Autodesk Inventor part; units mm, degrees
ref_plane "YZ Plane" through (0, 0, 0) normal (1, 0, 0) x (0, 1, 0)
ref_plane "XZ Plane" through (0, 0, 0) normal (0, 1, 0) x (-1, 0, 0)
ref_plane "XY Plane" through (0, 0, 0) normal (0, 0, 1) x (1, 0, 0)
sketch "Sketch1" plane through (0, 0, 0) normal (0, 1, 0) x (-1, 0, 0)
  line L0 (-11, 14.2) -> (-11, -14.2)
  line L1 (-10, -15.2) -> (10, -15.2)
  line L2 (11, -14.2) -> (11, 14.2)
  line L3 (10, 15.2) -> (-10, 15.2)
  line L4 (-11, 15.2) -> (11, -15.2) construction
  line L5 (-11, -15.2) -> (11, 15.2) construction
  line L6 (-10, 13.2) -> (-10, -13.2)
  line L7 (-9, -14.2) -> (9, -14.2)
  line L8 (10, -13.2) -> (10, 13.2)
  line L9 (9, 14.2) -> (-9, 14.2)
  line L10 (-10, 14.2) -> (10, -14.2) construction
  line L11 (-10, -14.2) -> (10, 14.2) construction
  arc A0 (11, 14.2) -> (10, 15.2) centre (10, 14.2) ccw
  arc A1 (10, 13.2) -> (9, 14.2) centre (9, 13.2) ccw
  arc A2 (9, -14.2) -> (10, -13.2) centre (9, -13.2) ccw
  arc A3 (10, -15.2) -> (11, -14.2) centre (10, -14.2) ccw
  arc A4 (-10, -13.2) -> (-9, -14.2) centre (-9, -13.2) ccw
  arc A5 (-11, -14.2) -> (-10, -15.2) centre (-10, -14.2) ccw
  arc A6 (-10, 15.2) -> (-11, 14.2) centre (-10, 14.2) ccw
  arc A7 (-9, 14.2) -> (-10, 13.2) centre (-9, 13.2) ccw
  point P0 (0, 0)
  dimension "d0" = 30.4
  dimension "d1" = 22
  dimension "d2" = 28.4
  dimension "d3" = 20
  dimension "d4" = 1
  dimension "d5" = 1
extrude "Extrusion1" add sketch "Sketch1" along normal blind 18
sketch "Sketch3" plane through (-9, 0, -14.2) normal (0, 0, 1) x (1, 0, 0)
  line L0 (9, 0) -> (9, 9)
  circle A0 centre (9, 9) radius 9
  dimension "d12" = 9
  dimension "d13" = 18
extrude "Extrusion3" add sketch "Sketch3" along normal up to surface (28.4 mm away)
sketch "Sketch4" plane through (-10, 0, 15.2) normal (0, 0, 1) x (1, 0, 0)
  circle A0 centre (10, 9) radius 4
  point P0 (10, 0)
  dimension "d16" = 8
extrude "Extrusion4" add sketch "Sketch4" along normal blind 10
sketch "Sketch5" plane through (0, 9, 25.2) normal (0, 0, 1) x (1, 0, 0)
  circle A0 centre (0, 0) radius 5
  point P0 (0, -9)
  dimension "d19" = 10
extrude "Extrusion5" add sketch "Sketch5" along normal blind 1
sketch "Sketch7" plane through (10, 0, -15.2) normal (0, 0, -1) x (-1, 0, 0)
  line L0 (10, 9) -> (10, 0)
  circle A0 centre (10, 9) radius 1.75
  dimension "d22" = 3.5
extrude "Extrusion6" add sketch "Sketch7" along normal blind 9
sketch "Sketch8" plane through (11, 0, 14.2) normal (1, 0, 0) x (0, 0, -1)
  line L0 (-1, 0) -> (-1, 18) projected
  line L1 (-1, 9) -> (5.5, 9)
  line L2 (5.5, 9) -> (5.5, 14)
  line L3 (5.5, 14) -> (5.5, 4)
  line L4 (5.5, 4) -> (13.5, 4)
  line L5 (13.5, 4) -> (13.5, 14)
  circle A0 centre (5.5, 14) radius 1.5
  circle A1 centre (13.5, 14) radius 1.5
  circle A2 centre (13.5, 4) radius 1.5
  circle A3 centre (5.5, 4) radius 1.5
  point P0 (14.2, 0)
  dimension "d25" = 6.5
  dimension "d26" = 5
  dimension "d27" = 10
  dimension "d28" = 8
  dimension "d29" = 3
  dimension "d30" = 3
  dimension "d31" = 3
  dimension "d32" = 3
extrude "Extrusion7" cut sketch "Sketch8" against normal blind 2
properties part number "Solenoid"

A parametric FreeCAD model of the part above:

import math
import FreeCAD as App
import Part
import Sketcher
from FreeCAD import Vector

doc = App.newDocument("Part")
params = doc.addObject("Spreadsheet::Sheet", "Params")
for row, (alias, value) in enumerate([
    ("sketch1_radius", "1 mm"),
    ("sketch1_width", "20 mm"),
    ("sketch1_height", "28.4 mm"),
    ("pad1_length", "18 mm"),
    ("sketch2_diameter", "18 mm"),
    ("pad2_length", "28.4 mm"),
    ("sketch3_diameter", "8 mm"),
    ("pad3_length", "10 mm"),
    ("sketch4_diameter", "10 mm"),
    ("pad4_length", "1 mm"),
    ("sketch5_diameter", "3.5 mm"),
    ("pad5_length", "9 mm"),
    ("sketch6_diameter", "3 mm"),
    ("pocket1_length", "2 mm"),
], start=1):
    params.set(f"A{row}", alias)
    params.set(f"B{row}", "=" + value)
    params.setAlias(f"B{row}", alias)

body = doc.addObject("PartDesign::Body", "Body")

# Sketch on XZ plane
sketch1 = body.newObject("Sketcher::SketchObject", "Sketch")
sketch1.AttachmentSupport = (doc.getObject("XZ_Plane"), [""])
sketch1.MapMode = "FlatFace"
sketch1.addGeometry(Part.ArcOfCircle(Part.Circle(Vector(10, 14.2, 0), Vector(0, 0, 1), 1), math.radians(0), math.radians(90)), False)
sketch1.addGeometry(Part.LineSegment(Vector(11, 14.2, 0), Vector(11, -14.2, 0)), False)
sketch1.addGeometry(Part.ArcOfCircle(Part.Circle(Vector(10, -14.2, 0), Vector(0, 0, 1), 1), math.radians(-90), math.radians(0)), False)
sketch1.addGeometry(Part.LineSegment(Vector(10, -15.2, 0), Vector(-10, -15.2, 0)), False)
sketch1.addGeometry(Part.ArcOfCircle(Part.Circle(Vector(-10, -14.2, 0), Vector(0, 0, 1), 1), math.radians(180), math.radians(270)), False)
sketch1.addGeometry(Part.LineSegment(Vector(-11, -14.2, 0), Vector(-11, 14.2, 0)), False)
sketch1.addGeometry(Part.ArcOfCircle(Part.Circle(Vector(-10, 14.2, 0), Vector(0, 0, 1), 1), math.radians(90), math.radians(180)), False)
sketch1.addGeometry(Part.LineSegment(Vector(-10, 15.2, 0), Vector(10, 15.2, 0)), False)
sketch1.addGeometry(Part.LineSegment(Vector(10, -13.2, 0), Vector(10, 13.2, 0)), False)
sketch1.addGeometry(Part.ArcOfCircle(Part.Circle(Vector(9, 13.2, 0), Vector(0, 0, 1), 1), math.radians(0), math.radians(90)), False)
sketch1.addGeometry(Part.LineSegment(Vector(9, 14.2, 0), Vector(-9, 14.2, 0)), False)
sketch1.addGeometry(Part.ArcOfCircle(Part.Circle(Vector(-9, 13.2, 0), Vector(0, 0, 1), 1), math.radians(90), math.radians(180)), False)
sketch1.addGeometry(Part.LineSegment(Vector(-10, 13.2, 0), Vector(-10, -13.2, 0)), False)
sketch1.addGeometry(Part.ArcOfCircle(Part.Circle(Vector(-9, -13.2, 0), Vector(0, 0, 1), 1), math.radians(180), math.radians(270)), False)
sketch1.addGeometry(Part.LineSegment(Vector(-9, -14.2, 0), Vector(9, -14.2, 0)), False)
sketch1.addGeometry(Part.ArcOfCircle(Part.Circle(Vector(9, -13.2, 0), Vector(0, 0, 1), 1), math.radians(-90), math.radians(0)), False)
sketch1.addConstraint(Sketcher.Constraint("Tangent", 0, 1, 1, 1))
sketch1.addConstraint(Sketcher.Constraint("Tangent", 1, 2, 2, 2))
sketch1.addConstraint(Sketcher.Constraint("Tangent", 2, 1, 3, 1))
sketch1.addConstraint(Sketcher.Constraint("Tangent", 3, 2, 4, 2))
sketch1.addConstraint(Sketcher.Constraint("Tangent", 4, 1, 5, 1))
sketch1.addConstraint(Sketcher.Constraint("Tangent", 5, 2, 6, 2))
sketch1.addConstraint(Sketcher.Constraint("Tangent", 6, 1, 7, 1))
sketch1.addConstraint(Sketcher.Constraint("Tangent", 7, 2, 0, 2))
sketch1.addConstraint(Sketcher.Constraint("Tangent", 8, 2, 9, 1))
sketch1.addConstraint(Sketcher.Constraint("Tangent", 9, 2, 10, 1))
sketch1.addConstraint(Sketcher.Constraint("Tangent", 10, 2, 11, 1))
sketch1.addConstraint(Sketcher.Constraint("Tangent", 11, 2, 12, 1))
sketch1.addConstraint(Sketcher.Constraint("Tangent", 12, 2, 13, 1))
sketch1.addConstraint(Sketcher.Constraint("Tangent", 13, 2, 14, 1))
sketch1.addConstraint(Sketcher.Constraint("Tangent", 14, 2, 15, 1))
sketch1.addConstraint(Sketcher.Constraint("Tangent", 15, 2, 8, 1))
sketch1.addConstraint(Sketcher.Constraint("Vertical", 1))
sketch1.addConstraint(Sketcher.Constraint("Horizontal", 3))
sketch1.addConstraint(Sketcher.Constraint("Vertical", 5))
sketch1.addConstraint(Sketcher.Constraint("Horizontal", 7))
sketch1.addConstraint(Sketcher.Constraint("Vertical", 8))
sketch1.addConstraint(Sketcher.Constraint("Horizontal", 10))
sketch1.addConstraint(Sketcher.Constraint("Vertical", 12))
sketch1.addConstraint(Sketcher.Constraint("Horizontal", 14))
sketch1.addConstraint(Sketcher.Constraint("Equal", 0, 2))
sketch1.addConstraint(Sketcher.Constraint("Equal", 2, 4))
sketch1.addConstraint(Sketcher.Constraint("Equal", 4, 6))
sketch1.addConstraint(Sketcher.Constraint("Equal", 6, 9))
sketch1.addConstraint(Sketcher.Constraint("Equal", 9, 11))
sketch1.addConstraint(Sketcher.Constraint("Equal", 11, 13))
sketch1.addConstraint(Sketcher.Constraint("Equal", 13, 15))
sketch1.addConstraint(Sketcher.Constraint("Symmetric", 0, 3, 4, 3, -1, 1))
sketch1.addConstraint(Sketcher.Constraint("Symmetric", 9, 3, 13, 3, -1, 1))
sketch1.addConstraint(Sketcher.Constraint("Horizontal", 5, 2, 9, 2))
sketch1.addConstraint(Sketcher.Constraint("Vertical", 7, 2, 8, 2))
sketch1.addConstraint(Sketcher.Constraint("Radius", 0, 1.0))
sketch1.addConstraint(Sketcher.Constraint("DistanceX", 3, 2, 3, 1, 20.0))
sketch1.addConstraint(Sketcher.Constraint("DistanceY", 1, 2, 1, 1, 28.4))
sketch1.setExpression("Constraints[35]", "Params.sketch1_radius")
sketch1.setExpression("Constraints[36]", "Params.sketch1_width")
sketch1.setExpression("Constraints[37]", "Params.sketch1_height")
pad1 = body.newObject("PartDesign::Pad", "Pad")
pad1.Profile = sketch1
pad1.setExpression("Length", "Params.pad1_length")
pad1.Reversed = True

# Sketch on XY plane
sketch2 = body.newObject("Sketcher::SketchObject", "Sketch001")
sketch2.AttachmentSupport = (doc.getObject("XY_Plane"), [""])
sketch2.MapMode = "FlatFace"
sketch2.AttachmentOffset = App.Placement(Vector(0, 0, -14.2), App.Rotation())
sketch2.addGeometry(Part.Circle(Vector(0, 9, 0), Vector(0, 0, 1), 9), False)
sketch2.addConstraint(Sketcher.Constraint("PointOnObject", 0, 3, -2))
sketch2.addConstraint(Sketcher.Constraint("Diameter", 0, 18.0))
sketch2.addConstraint(Sketcher.Constraint("DistanceY", -1, 1, 0, 3, 9.0))
sketch2.setExpression("Constraints[1]", "Params.sketch2_diameter")
pad2 = body.newObject("PartDesign::Pad", "Pad001")
pad2.Profile = sketch2
pad2.setExpression("Length", "Params.pad2_length")

# Sketch on XY plane
sketch3 = body.newObject("Sketcher::SketchObject", "Sketch002")
sketch3.AttachmentSupport = (doc.getObject("XY_Plane"), [""])
sketch3.MapMode = "FlatFace"
sketch3.AttachmentOffset = App.Placement(Vector(0, 0, 15.2), App.Rotation())
sketch3.addGeometry(Part.Circle(Vector(0, 9, 0), Vector(0, 0, 1), 4), False)
sketch3.addConstraint(Sketcher.Constraint("PointOnObject", 0, 3, -2))
sketch3.addConstraint(Sketcher.Constraint("Diameter", 0, 8.0))
sketch3.addConstraint(Sketcher.Constraint("DistanceY", -1, 1, 0, 3, 9.0))
sketch3.setExpression("Constraints[1]", "Params.sketch3_diameter")
pad3 = body.newObject("PartDesign::Pad", "Pad002")
pad3.Profile = sketch3
pad3.setExpression("Length", "Params.pad3_length")

# Sketch on XY plane
sketch4 = body.newObject("Sketcher::SketchObject", "Sketch003")
sketch4.AttachmentSupport = (doc.getObject("XY_Plane"), [""])
sketch4.MapMode = "FlatFace"
sketch4.AttachmentOffset = App.Placement(Vector(0, 0, 25.2), App.Rotation())
sketch4.addGeometry(Part.Circle(Vector(0, 9, 0), Vector(0, 0, 1), 5), False)
sketch4.addConstraint(Sketcher.Constraint("PointOnObject", 0, 3, -2))
sketch4.addConstraint(Sketcher.Constraint("Diameter", 0, 10.0))
sketch4.addConstraint(Sketcher.Constraint("DistanceY", -1, 1, 0, 3, 9.0))
sketch4.setExpression("Constraints[1]", "Params.sketch4_diameter")
pad4 = body.newObject("PartDesign::Pad", "Pad003")
pad4.Profile = sketch4
pad4.setExpression("Length", "Params.pad4_length")

# Sketch on XY plane
sketch5 = body.newObject("Sketcher::SketchObject", "Sketch004")
sketch5.AttachmentSupport = (doc.getObject("XY_Plane"), [""])
sketch5.MapMode = "FlatFace"
sketch5.AttachmentOffset = App.Placement(Vector(0, 0, -15.2), App.Rotation())
sketch5.addGeometry(Part.Circle(Vector(0, 9, 0), Vector(0, 0, 1), 1.75), False)
sketch5.addConstraint(Sketcher.Constraint("PointOnObject", 0, 3, -2))
sketch5.addConstraint(Sketcher.Constraint("Diameter", 0, 3.5))
sketch5.addConstraint(Sketcher.Constraint("DistanceY", -1, 1, 0, 3, 9.0))
sketch5.setExpression("Constraints[1]", "Params.sketch5_diameter")
pad5 = body.newObject("PartDesign::Pad", "Pad004")
pad5.Profile = sketch5
pad5.setExpression("Length", "Params.pad5_length")
pad5.Reversed = True

# Sketch on YZ plane
sketch6 = body.newObject("Sketcher::SketchObject", "Sketch005")
sketch6.AttachmentSupport = (doc.getObject("YZ_Plane"), [""])
sketch6.MapMode = "FlatFace"
sketch6.AttachmentOffset = App.Placement(Vector(0, 0, 11), App.Rotation())
sketch6.addGeometry(Part.Circle(Vector(14, 8.7, 0), Vector(0, 0, 1), 1.5), False)
sketch6.addGeometry(Part.Circle(Vector(14, 0.7, 0), Vector(0, 0, 1), 1.5), False)
sketch6.addGeometry(Part.Circle(Vector(4, 0.7, 0), Vector(0, 0, 1), 1.5), False)
sketch6.addGeometry(Part.Circle(Vector(4, 8.7, 0), Vector(0, 0, 1), 1.5), False)
sketch6.addConstraint(Sketcher.Constraint("Equal", 0, 1))
sketch6.addConstraint(Sketcher.Constraint("Equal", 1, 2))
sketch6.addConstraint(Sketcher.Constraint("Equal", 2, 3))
sketch6.addConstraint(Sketcher.Constraint("Horizontal", 1, 3, 2, 3))
sketch6.addConstraint(Sketcher.Constraint("Horizontal", 0, 3, 3, 3))
sketch6.addConstraint(Sketcher.Constraint("Vertical", 0, 3, 1, 3))
sketch6.addConstraint(Sketcher.Constraint("Vertical", 2, 3, 3, 3))
sketch6.addConstraint(Sketcher.Constraint("Diameter", 0, 3.0))
sketch6.addConstraint(Sketcher.Constraint("DistanceY", 1, 3, 0, 3, 8.0))
sketch6.addConstraint(Sketcher.Constraint("DistanceX", 2, 3, 1, 3, 10.0))
sketch6.addConstraint(Sketcher.Constraint("DistanceX", -1, 1, 0, 3, 14.0))
sketch6.addConstraint(Sketcher.Constraint("DistanceY", -1, 1, 0, 3, 8.7))
sketch6.setExpression("Constraints[7]", "Params.sketch6_diameter")
pocket1 = body.newObject("PartDesign::Pocket", "Pocket")
pocket1.Profile = sketch6
pocket1.setExpression("Length", "Params.pocket1_length")

doc.recompute()
